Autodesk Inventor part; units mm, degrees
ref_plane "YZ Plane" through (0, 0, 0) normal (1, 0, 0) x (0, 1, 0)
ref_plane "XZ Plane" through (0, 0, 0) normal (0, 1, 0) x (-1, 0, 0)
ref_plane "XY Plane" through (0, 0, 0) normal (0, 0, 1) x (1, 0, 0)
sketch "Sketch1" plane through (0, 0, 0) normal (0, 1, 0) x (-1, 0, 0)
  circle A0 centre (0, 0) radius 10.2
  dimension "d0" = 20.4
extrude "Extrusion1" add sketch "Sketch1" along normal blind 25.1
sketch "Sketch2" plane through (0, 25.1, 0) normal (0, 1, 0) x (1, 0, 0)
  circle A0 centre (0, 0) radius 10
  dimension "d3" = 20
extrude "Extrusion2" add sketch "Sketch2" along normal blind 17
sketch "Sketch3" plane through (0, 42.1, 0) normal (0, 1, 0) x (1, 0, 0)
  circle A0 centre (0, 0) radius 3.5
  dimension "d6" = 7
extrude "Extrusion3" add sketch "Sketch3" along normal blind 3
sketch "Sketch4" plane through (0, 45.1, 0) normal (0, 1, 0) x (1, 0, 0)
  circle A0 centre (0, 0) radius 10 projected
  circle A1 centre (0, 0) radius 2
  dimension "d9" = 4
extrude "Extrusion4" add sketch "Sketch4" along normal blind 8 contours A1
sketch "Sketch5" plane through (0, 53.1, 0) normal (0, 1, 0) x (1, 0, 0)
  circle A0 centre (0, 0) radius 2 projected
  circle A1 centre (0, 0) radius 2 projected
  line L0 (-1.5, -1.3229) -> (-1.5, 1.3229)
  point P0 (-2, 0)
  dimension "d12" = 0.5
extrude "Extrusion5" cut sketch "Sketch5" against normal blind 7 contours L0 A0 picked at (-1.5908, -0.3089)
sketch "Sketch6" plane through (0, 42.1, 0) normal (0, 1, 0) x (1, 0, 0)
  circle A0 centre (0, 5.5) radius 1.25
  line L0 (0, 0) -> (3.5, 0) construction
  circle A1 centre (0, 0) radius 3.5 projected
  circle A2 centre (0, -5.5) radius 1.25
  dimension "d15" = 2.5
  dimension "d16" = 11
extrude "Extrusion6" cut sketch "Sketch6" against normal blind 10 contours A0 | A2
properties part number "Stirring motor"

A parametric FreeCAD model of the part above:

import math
import FreeCAD as App
import Part
import Sketcher
from FreeCAD import Vector
Q = App.Units.Quantity

doc = App.newDocument("Part")
params = doc.addObject("Spreadsheet::Sheet", "Params")
for row, (alias, value) in enumerate([
    ("sketch1_diameter", "20.4 mm"),
    ("pad1_length", "25.1 mm"),
    ("sketch2_diameter", "20 mm"),
    ("pad2_length", "17 mm"),
    ("sketch3_diameter", "7 mm"),
    ("pad3_length", "3 mm"),
    ("sketch4_diameter", "4 mm"),
    ("pad4_length", "8 mm"),
    ("sketch5_radius", "2 mm"),
    ("pocket1_length", "7 mm"),
    ("sketch6_diameter", "2.5 mm"),
    ("pocket2_length", "10 mm"),
], start=1):
    params.set(f"A{row}", alias)
    params.set(f"B{row}", "=" + value)
    params.setAlias(f"B{row}", alias)

body = doc.addObject("PartDesign::Body", "Body")

sketch1 = body.newObject("Sketcher::SketchObject", "Sketch")
sketch1.AttachmentSupport = (doc.getObject("XZ_Plane"), [""])
sketch1.MapMode = "FlatFace"
sketch1.addGeometry(Part.Circle(Vector(0, 0, 0), Vector(0, 0, 1), 10), False)
sketch1.addConstraint([
    Sketcher.Constraint("Coincident", 0, 3, -1, 1),
    Sketcher.Constraint("Diameter", 0, Q("20.4 mm")),
])
sketch1.setExpression("Constraints[1]", "Params.sketch1_diameter")
pad1 = body.newObject("PartDesign::Pad", "Pad")
pad1.Profile = sketch1
pad1.setExpression("Length", "Params.pad1_length")
pad1.Reversed = True

sketch2 = body.newObject("Sketcher::SketchObject", "Sketch001")
sketch2.AttachmentSupport = (doc.getObject("XZ_Plane"), [""])
sketch2.MapMode = "FlatFace"
sketch2.AttachmentOffset = App.Placement(Vector(0, 0, -25.1), App.Rotation())
sketch2.addGeometry(Part.Circle(Vector(0, 0, 0), Vector(0, 0, 1), 10), False)
sketch2.addConstraint([
    Sketcher.Constraint("Coincident", 0, 3, -1, 1),
    Sketcher.Constraint("Diameter", 0, Q("20 mm")),
])
sketch2.setExpression("Constraints[1]", "Params.sketch2_diameter")
pad2 = body.newObject("PartDesign::Pad", "Pad001")
pad2.Profile = sketch2
pad2.setExpression("Length", "Params.pad2_length")
pad2.Reversed = True

sketch3 = body.newObject("Sketcher::SketchObject", "Sketch002")
sketch3.AttachmentSupport = (doc.getObject("XZ_Plane"), [""])
sketch3.MapMode = "FlatFace"
sketch3.AttachmentOffset = App.Placement(Vector(0, 0, -42.1), App.Rotation())
sketch3.addGeometry(Part.Circle(Vector(0, 0, 0), Vector(0, 0, 1), 3.5), False)
sketch3.addConstraint([
    Sketcher.Constraint("Coincident", 0, 3, -1, 1),
    Sketcher.Constraint("Diameter", 0, Q("7 mm")),
])
sketch3.setExpression("Constraints[1]", "Params.sketch3_diameter")
pad3 = body.newObject("PartDesign::Pad", "Pad002")
pad3.Profile = sketch3
pad3.setExpression("Length", "Params.pad3_length")
pad3.Reversed = True

sketch4 = body.newObject("Sketcher::SketchObject", "Sketch003")
sketch4.AttachmentSupport = (doc.getObject("XZ_Plane"), [""])
sketch4.MapMode = "FlatFace"
sketch4.AttachmentOffset = App.Placement(Vector(0, 0, -45.1), App.Rotation())
sketch4.addGeometry(Part.Circle(Vector(0, 0, 0), Vector(0, 0, 1), 2), False)
sketch4.addConstraint([
    Sketcher.Constraint("Coincident", 0, 3, -1, 1),
    Sketcher.Constraint("Diameter", 0, Q("4 mm")),
])
sketch4.setExpression("Constraints[1]", "Params.sketch4_diameter")
pad4 = body.newObject("PartDesign::Pad", "Pad003")
pad4.Profile = sketch4
pad4.setExpression("Length", "Params.pad4_length")
pad4.Reversed = True

sketch5 = body.newObject("Sketcher::SketchObject", "Sketch004")
sketch5.AttachmentSupport = (doc.getObject("XZ_Plane"), [""])
sketch5.MapMode = "FlatFace"
sketch5.AttachmentOffset = App.Placement(Vector(0, 0, -53.1), App.Rotation())
sketch5.addGeometry([
    Part.LineSegment(Vector(-1.5, 1.3, 0), Vector(-1.5, -1.3, 0)),
    Part.ArcOfCircle(Part.Circle(Vector(0, 0, 0), Vector(0, 0, 1), 2), math.radians(139), math.radians(221)),
], False)
sketch5.addConstraint([
    Sketcher.Constraint("Coincident", 0, 1, 1, 1),
    Sketcher.Constraint("Coincident", 1, 2, 0, 2),
    Sketcher.Constraint("Vertical", 0),
    Sketcher.Constraint("Coincident", 1, 3, -1, 1),
    Sketcher.Constraint("Radius", 1, Q("2 mm")),
    Sketcher.Constraint("DistanceX", 0, 1, -1, 1, Q("1.5 mm")),
])
sketch5.setExpression("Constraints[4]", "Params.sketch5_radius")
pocket1 = body.newObject("PartDesign::Pocket", "Pocket")
pocket1.Profile = sketch5
pocket1.setExpression("Length", "Params.pocket1_length")
pocket1.Reversed = True

sketch6 = body.newObject("Sketcher::SketchObject", "Sketch005")
sketch6.AttachmentSupport = (doc.getObject("XZ_Plane"), [""])
sketch6.MapMode = "FlatFace"
sketch6.AttachmentOffset = App.Placement(Vector(0, 0, -42.1), App.Rotation())
sketch6.addGeometry([
    Part.Circle(Vector(0, -5.5, 0), Vector(0, 0, 1), 1.2),
    Part.Circle(Vector(0, 5.5, 0), Vector(0, 0, 1), 1.2),
], False)
sketch6.addConstraint([
    Sketcher.Constraint("Equal", 0, 1),
    Sketcher.Constraint("Symmetric", 0, 3, 1, 3, -1, 1),
    Sketcher.Constraint("PointOnObject", 0, 3, -2),
    Sketcher.Constraint("Diameter", 0, Q("2.5 mm")),
    Sketcher.Constraint("DistanceY", 0, 3, 1, 3, Q("11 mm")),
])
sketch6.setExpression("Constraints[3]", "Params.sketch6_diameter")
pocket2 = body.newObject("PartDesign::Pocket", "Pocket001")
pocket2.Profile = sketch6
pocket2.setExpression("Length", "Params.pocket2_length")
pocket2.Reversed = True

doc.recompute()
